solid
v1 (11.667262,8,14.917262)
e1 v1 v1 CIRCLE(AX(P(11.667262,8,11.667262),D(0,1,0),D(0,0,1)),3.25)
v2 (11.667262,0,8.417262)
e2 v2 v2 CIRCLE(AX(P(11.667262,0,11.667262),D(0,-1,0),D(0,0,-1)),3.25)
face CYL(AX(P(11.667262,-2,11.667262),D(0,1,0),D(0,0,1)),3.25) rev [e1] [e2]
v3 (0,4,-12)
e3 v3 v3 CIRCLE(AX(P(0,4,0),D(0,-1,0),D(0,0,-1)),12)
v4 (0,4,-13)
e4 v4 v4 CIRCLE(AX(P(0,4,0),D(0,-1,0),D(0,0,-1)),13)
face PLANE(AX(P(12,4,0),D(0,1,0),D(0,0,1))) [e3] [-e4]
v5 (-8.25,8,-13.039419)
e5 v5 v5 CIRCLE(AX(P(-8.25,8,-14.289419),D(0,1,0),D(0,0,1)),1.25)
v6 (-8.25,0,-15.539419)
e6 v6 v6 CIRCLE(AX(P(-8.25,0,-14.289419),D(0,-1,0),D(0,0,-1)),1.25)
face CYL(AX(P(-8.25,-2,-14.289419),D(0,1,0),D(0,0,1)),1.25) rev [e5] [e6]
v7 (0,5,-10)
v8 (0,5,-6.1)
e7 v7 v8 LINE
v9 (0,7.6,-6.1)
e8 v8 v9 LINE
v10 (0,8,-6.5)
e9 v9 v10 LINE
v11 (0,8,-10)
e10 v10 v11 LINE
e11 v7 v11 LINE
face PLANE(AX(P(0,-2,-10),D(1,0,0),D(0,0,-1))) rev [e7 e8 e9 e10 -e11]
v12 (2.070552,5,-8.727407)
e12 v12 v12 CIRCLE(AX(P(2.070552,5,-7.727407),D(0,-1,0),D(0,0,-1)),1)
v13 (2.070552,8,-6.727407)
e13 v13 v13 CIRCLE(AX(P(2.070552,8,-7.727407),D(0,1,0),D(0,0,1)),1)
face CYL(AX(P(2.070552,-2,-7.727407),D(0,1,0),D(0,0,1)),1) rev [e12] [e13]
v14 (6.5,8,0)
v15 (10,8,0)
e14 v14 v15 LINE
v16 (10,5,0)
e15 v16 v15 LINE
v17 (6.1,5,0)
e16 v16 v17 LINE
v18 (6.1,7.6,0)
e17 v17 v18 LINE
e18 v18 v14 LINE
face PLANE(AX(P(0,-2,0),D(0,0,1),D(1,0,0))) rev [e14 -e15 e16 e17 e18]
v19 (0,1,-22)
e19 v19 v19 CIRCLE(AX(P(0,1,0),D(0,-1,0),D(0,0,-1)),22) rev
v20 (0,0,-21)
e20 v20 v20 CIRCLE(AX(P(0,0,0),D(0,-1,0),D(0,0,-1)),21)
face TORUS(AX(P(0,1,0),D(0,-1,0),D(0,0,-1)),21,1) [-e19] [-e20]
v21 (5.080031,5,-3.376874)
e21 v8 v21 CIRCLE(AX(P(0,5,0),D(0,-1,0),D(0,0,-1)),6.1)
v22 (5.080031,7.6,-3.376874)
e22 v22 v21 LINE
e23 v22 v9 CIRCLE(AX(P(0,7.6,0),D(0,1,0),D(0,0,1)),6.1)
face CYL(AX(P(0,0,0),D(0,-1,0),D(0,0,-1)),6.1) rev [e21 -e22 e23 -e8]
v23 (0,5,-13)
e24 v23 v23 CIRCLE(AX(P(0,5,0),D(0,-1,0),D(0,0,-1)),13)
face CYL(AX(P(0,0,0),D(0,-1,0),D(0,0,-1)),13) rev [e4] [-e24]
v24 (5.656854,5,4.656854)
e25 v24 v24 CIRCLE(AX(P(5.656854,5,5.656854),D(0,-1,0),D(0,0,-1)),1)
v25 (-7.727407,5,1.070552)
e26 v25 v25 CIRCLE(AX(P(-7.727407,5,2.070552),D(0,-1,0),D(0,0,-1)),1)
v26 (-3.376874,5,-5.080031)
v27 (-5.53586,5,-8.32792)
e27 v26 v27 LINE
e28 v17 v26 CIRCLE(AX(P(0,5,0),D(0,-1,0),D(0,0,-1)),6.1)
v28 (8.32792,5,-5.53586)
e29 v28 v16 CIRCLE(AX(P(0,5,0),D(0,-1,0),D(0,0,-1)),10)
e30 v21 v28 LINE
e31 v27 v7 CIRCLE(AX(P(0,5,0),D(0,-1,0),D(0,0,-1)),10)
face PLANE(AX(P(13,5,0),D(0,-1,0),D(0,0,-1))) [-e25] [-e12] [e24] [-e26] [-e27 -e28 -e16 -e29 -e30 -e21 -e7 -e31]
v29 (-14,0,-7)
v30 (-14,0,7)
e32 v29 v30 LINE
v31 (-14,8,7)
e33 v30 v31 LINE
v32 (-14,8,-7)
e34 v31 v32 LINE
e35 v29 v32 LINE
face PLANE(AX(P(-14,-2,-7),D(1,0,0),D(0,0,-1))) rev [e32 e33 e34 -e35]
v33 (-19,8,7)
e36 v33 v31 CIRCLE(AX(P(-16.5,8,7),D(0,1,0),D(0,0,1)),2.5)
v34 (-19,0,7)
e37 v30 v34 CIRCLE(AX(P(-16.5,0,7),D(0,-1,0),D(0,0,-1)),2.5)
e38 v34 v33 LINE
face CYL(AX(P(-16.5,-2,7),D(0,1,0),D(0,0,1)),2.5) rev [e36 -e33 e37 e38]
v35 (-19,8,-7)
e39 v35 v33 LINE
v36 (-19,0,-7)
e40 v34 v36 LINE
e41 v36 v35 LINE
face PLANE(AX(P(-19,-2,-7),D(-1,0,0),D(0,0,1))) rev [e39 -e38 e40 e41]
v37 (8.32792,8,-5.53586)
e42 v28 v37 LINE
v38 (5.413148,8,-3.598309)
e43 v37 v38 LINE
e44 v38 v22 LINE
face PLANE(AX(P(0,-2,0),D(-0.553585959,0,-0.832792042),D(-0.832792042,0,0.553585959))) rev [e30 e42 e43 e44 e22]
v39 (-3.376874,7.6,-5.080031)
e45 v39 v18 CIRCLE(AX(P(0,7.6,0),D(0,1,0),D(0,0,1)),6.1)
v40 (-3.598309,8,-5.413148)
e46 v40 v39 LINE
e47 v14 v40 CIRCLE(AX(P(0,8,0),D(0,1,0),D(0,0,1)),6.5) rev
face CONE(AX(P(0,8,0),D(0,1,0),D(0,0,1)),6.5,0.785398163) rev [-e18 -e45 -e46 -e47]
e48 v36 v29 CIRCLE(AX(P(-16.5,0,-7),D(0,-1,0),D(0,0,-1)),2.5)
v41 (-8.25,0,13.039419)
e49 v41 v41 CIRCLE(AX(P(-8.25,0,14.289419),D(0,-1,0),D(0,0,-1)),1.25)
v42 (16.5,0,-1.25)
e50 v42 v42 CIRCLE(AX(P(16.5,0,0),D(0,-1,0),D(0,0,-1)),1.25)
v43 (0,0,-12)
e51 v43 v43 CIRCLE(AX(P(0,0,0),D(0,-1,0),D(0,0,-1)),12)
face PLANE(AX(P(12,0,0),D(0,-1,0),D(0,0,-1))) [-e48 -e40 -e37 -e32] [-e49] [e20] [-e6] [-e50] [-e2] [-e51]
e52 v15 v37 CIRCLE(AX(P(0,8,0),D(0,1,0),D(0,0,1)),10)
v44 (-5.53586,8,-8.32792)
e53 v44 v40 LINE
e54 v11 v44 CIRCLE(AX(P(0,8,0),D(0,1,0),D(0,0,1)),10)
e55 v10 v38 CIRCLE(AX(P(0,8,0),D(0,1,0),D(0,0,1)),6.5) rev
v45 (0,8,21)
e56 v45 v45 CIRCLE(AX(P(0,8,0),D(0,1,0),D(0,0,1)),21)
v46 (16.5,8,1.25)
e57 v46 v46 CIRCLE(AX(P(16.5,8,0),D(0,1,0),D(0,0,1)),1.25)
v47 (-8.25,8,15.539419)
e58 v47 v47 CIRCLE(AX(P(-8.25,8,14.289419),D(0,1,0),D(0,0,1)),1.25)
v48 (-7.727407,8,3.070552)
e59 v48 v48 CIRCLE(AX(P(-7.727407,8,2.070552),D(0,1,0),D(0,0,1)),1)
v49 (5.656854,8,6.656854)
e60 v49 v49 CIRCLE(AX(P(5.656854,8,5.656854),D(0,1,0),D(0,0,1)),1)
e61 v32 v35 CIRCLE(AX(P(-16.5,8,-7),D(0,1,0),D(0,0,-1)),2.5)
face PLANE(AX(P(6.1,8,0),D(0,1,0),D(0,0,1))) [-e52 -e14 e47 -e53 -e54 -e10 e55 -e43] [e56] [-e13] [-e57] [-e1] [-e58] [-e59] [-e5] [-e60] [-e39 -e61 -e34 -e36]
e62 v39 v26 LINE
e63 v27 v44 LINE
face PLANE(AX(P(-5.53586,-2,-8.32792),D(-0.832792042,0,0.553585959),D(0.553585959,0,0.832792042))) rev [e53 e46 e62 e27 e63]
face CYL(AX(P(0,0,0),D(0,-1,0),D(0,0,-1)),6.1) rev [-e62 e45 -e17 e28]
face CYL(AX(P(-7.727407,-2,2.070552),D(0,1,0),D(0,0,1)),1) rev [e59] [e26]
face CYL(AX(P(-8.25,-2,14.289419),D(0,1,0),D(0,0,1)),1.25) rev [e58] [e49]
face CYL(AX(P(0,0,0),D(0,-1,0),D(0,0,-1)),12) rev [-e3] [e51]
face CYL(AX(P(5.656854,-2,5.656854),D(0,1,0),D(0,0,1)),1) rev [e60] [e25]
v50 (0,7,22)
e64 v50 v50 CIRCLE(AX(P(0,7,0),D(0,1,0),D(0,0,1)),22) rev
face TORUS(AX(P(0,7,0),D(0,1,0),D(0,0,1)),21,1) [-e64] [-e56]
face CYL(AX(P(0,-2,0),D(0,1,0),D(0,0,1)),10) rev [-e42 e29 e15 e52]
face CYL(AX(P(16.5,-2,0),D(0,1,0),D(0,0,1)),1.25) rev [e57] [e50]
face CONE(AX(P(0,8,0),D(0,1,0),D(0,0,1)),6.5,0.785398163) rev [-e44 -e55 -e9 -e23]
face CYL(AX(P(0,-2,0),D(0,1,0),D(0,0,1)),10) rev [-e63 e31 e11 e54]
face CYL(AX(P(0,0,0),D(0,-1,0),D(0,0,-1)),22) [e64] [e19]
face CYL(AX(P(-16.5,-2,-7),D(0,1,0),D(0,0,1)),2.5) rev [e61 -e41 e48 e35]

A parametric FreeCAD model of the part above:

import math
import FreeCAD as App
import Part
import Sketcher
from FreeCAD import Vector


def edges_at(feature, points):
    """Names of the edges that pass closest to the given points."""
    edges = feature.Shape.Edges
    near = lambda p: min(range(len(edges)), key=lambda i: edges[i].distToShape(Part.Vertex(*p))[0])
    return sorted({f"Edge{near(p) + 1}" for p in points})


def add_polygon(sketch, points):
    """Adds a closed chain of lines whose ends are joined by coincident constraints."""
    first, n = sketch.GeometryCount, len(points)
    for a, b in zip(points, points[1:] + points[:1]):
        sketch.addGeometry(Part.LineSegment(App.Vector(*a, 0), App.Vector(*b, 0)), False)
    for i in range(n):
        sketch.addConstraint(Sketcher.Constraint("Coincident", first + i, 2, first + (i + 1) % n, 1))

doc = App.newDocument("Part")
params = doc.addObject("Spreadsheet::Sheet", "Params")
for row, (alias, value) in enumerate([
    ("sketch1_width", "10 mm"),
    ("sketch1_width2", "1 mm"),
    ("sketch1_height", "4 mm"),
    ("sketch1_height2", "8 mm"),
    ("sketch1_width3", "15.9 mm"),
    ("revolution_angle", "360 deg"),
    ("fillet_radius", "1 mm"),
    ("chamfer_size", "0.4 mm"),
    ("sketch2_diameter", "2 mm"),
    ("sketch2_radius", "10 mm"),
    ("sketch2_diameter2", "2.5 mm"),
    ("sketch2_diameter3", "6.5 mm"),
    ("sketch2_radius2", "2.5 mm"),
    ("pocket1_length", "10 mm"),
], start=1):
    params.set(f"A{row}", alias)
    params.set(f"B{row}", "=" + value)
    params.setAlias(f"B{row}", alias)

body = doc.addObject("PartDesign::Body", "Body")

# Sketch on XY plane
sketch1 = body.newObject("Sketcher::SketchObject", "Sketch")
sketch1.AttachmentSupport = (doc.getObject("XY_Plane"), [""])
sketch1.MapMode = "FlatFace"
add_polygon(sketch1, [(12, 4), (12, 0), (22, 0), (22, 8), (6.1, 8), (6.1, 5), (13, 5), (13, 4)])  # lines 0-7
sketch1.addConstraint(Sketcher.Constraint("Vertical", 0))
sketch1.addConstraint(Sketcher.Constraint("Horizontal", 1))
sketch1.addConstraint(Sketcher.Constraint("Vertical", 2))
sketch1.addConstraint(Sketcher.Constraint("Horizontal", 3))
sketch1.addConstraint(Sketcher.Constraint("Vertical", 4))
sketch1.addConstraint(Sketcher.Constraint("Horizontal", 5))
sketch1.addConstraint(Sketcher.Constraint("Vertical", 6))
sketch1.addConstraint(Sketcher.Constraint("Horizontal", 7))
sketch1.addConstraint(Sketcher.Constraint("PointOnObject", 0, 2, -1))
sketch1.addConstraint(Sketcher.Constraint("Equal", 7, 6))
sketch1.addConstraint(Sketcher.Constraint("DistanceX", 1, 1, 1, 2, 10.0))
sketch1.addConstraint(Sketcher.Constraint("DistanceX", 7, 2, 7, 1, 1.0))
sketch1.addConstraint(Sketcher.Constraint("DistanceY", 0, 2, 0, 1, 4.0))
sketch1.addConstraint(Sketcher.Constraint("DistanceY", 2, 1, 2, 2, 8.0))
sketch1.addConstraint(Sketcher.Constraint("DistanceX", 3, 2, 3, 1, 15.9))
sketch1.addConstraint(Sketcher.Constraint("DistanceX", -1, 1, 0, 2, 12.0))
sketch1.setExpression("Constraints[18]", "Params.sketch1_width")
sketch1.setExpression("Constraints[19]", "Params.sketch1_width2")
sketch1.setExpression("Constraints[20]", "Params.sketch1_height")
sketch1.setExpression("Constraints[21]", "Params.sketch1_height2")
sketch1.setExpression("Constraints[22]", "Params.sketch1_width3")
revolution = body.newObject("PartDesign::Revolution", "Revolution")
revolution.Profile = sketch1
revolution.ReferenceAxis = (sketch1, ["V_Axis"])
revolution.setExpression("Angle", "Params.revolution_angle")
doc.recompute()

fillet = body.newObject("PartDesign::Fillet", "Fillet")
fillet.Base = (revolution, edges_at(revolution, [(0, 8, 22), (0, 0, 22)]))
fillet.setExpression("Radius", "Params.fillet_radius")
doc.recompute()

chamfer = body.newObject("PartDesign::Chamfer", "Chamfer")
chamfer.Base = (fillet, edges_at(fillet, [(0, 8, 6.1)]))
chamfer.setExpression("Size", "Params.chamfer_size")

# Sketch on XZ plane
sketch2 = body.newObject("Sketcher::SketchObject", "Sketch001")
sketch2.AttachmentSupport = (doc.getObject("XZ_Plane"), [""])
sketch2.MapMode = "FlatFace"
sketch2.AttachmentOffset = App.Placement(Vector(0, 0, -8), App.Rotation())
sketch2.addGeometry(Part.Circle(Vector(2.070552, -7.727407, 0), Vector(0, 0, 1), 1), False)
sketch2.addGeometry(Part.Circle(Vector(5.656854, 5.656854, 0), Vector(0, 0, 1), 1), False)
sketch2.addGeometry(Part.Circle(Vector(-7.727407, 2.070552, 0), Vector(0, 0, 1), 1), False)
sketch2.addGeometry(Part.Circle(Vector(16.5, 0, 0), Vector(0, 0, 1), 1.25), False)
sketch2.addGeometry(Part.Circle(Vector(-8.25, 14.289419, 0), Vector(0, 0, 1), 1.25), False)
sketch2.addGeometry(Part.Circle(Vector(-8.25, -14.289419, 0), Vector(0, 0, 1), 1.25), False)
sketch2.addGeometry(Part.Circle(Vector(11.667262, 11.667262, 0), Vector(0, 0, 1), 3.25), False)
sketch2.addGeometry(Part.LineSegment(Vector(8.32792, -5.53586, 0), Vector(0, 0, 0)), False)
sketch2.addGeometry(Part.LineSegment(Vector(0, 0, 0), Vector(10, 0, 0)), False)
sketch2.addGeometry(Part.ArcOfCircle(Part.Circle(Vector(0, 0, 0), Vector(0, 0, 1), 10), math.radians(-33.613374), math.radians(0)), False)
sketch2.addGeometry(Part.LineSegment(Vector(-19, -7, 0), Vector(-19, 7, 0)), False)
sketch2.addGeometry(Part.ArcOfCircle(Part.Circle(Vector(-16.5, 7, 0), Vector(0, 0, 1), 2.5), math.radians(0), math.radians(180)), False)
sketch2.addGeometry(Part.LineSegment(Vector(-14, 7, 0), Vector(-14, -7, 0)), False)
sketch2.addGeometry(Part.ArcOfCircle(Part.Circle(Vector(-16.5, -7, 0), Vector(0, 0, 1), 2.5), math.radians(180), math.radians(360)), False)
sketch2.addGeometry(Part.LineSegment(Vector(-5.53586, -8.32792, 0), Vector(-3.064574, -4.61022, 0)), False)
sketch2.addGeometry(Part.ArcOfCircle(Part.Circle(Vector(0, 0, 0), Vector(0, 0, 1), 5.53586), math.radians(-123.613374), math.radians(-90)), False)
sketch2.addGeometry(Part.LineSegment(Vector(0, -5.53586, 0), Vector(0, -10, 0)), False)
sketch2.addGeometry(Part.ArcOfCircle(Part.Circle(Vector(0, 0, 0), Vector(0, 0, 1), 10), math.radians(-123.613374), math.radians(-90)), False)
sketch2.addConstraint(Sketcher.Constraint("Coincident", 7, 2, 8, 1))
sketch2.addConstraint(Sketcher.Constraint("Coincident", 8, 2, 9, 2))
sketch2.addConstraint(Sketcher.Constraint("Coincident", 9, 1, 7, 1))
sketch2.addConstraint(Sketcher.Constraint("Tangent", 10, 2, 11, 2))
sketch2.addConstraint(Sketcher.Constraint("Tangent", 11, 1, 12, 1))
sketch2.addConstraint(Sketcher.Constraint("Tangent", 12, 2, 13, 2))
sketch2.addConstraint(Sketcher.Constraint("Tangent", 13, 1, 10, 1))
sketch2.addConstraint(Sketcher.Constraint("Coincident", 14, 2, 15, 1))
sketch2.addConstraint(Sketcher.Constraint("Coincident", 15, 2, 16, 1))
sketch2.addConstraint(Sketcher.Constraint("Coincident", 16, 2, 17, 2))
sketch2.addConstraint(Sketcher.Constraint("Coincident", 17, 1, 14, 1))
sketch2.addConstraint(Sketcher.Constraint("Horizontal", 8))
sketch2.addConstraint(Sketcher.Constraint("Vertical", 10))
sketch2.addConstraint(Sketcher.Constraint("Vertical", 12))
sketch2.addConstraint(Sketcher.Constraint("Vertical", 16))
sketch2.addConstraint(Sketcher.Constraint("Coincident", 9, 3, -1, 1))
sketch2.addConstraint(Sketcher.Constraint("Coincident", 15, 3, -1, 1))
sketch2.addConstraint(Sketcher.Constraint("Coincident", 17, 3, -1, 1))
sketch2.addConstraint(Sketcher.Constraint("Coincident", 7, 2, -1, 1))
sketch2.addConstraint(Sketcher.Constraint("Equal", 0, 1))
sketch2.addConstraint(Sketcher.Constraint("Equal", 1, 2))
sketch2.addConstraint(Sketcher.Constraint("Equal", 3, 4))
sketch2.addConstraint(Sketcher.Constraint("Equal", 4, 5))
sketch2.addConstraint(Sketcher.Constraint("Equal", 9, 17))
sketch2.addConstraint(Sketcher.Constraint("Symmetric", 4, 3, 5, 3, -1))
sketch2.addConstraint(Sketcher.Constraint("PointOnObject", 3, 3, -1))
sketch2.addConstraint(Sketcher.Constraint("PointOnObject", 15, 2, -2))
sketch2.addConstraint(Sketcher.Constraint("Perpendicular", 7, 14))
sketch2.addConstraint(Sketcher.Constraint("Horizontal", 9, 1, 15, 2))
sketch2.addConstraint(Sketcher.Constraint("Diameter", 0, 2.0))
sketch2.addConstraint(Sketcher.Constraint("Radius", 9, 10.0))
sketch2.addConstraint(Sketcher.Constraint("Diameter", 3, 2.5))
sketch2.addConstraint(Sketcher.Constraint("Diameter", 6, 6.5))
sketch2.addConstraint(Sketcher.Constraint("Radius", 11, 2.5))
sketch2.addConstraint(Sketcher.Constraint("DistanceY", 10, 1, 10, 2, 14.0))
sketch2.addConstraint(Sketcher.Constraint("DistanceY", -1, 1, 11, 3, 7.0))
sketch2.addConstraint(Sketcher.Constraint("DistanceX", 10, 2, -1, 1, 19.0))
sketch2.addConstraint(Sketcher.Constraint("DistanceX", -1, 1, 3, 3, 16.5))
sketch2.addConstraint(Sketcher.Constraint("DistanceX", 4, 3, -1, 1, 8.25))
sketch2.addConstraint(Sketcher.Constraint("Radius", 15, 5.53586))
sketch2.addConstraint(Sketcher.Constraint("DistanceX", 0, 3, 1, 3, 3.586302))
sketch2.addConstraint(Sketcher.Constraint("DistanceY", 2, 3, 1, 3, 3.586302))
sketch2.addConstraint(Sketcher.Constraint("DistanceY", 5, 3, 17, 1, 5.961499))
sketch2.addConstraint(Sketcher.Constraint("DistanceY", -1, 1, 4, 3, 14.289419))
sketch2.addConstraint(Sketcher.Constraint("DistanceX", -1, 1, 6, 3, 11.667262))
sketch2.addConstraint(Sketcher.Constraint("DistanceY", -1, 1, 6, 3, 11.667262))
sketch2.addConstraint(Sketcher.Constraint("DistanceY", 0, 3, 1, 3, 13.384261))
sketch2.addConstraint(Sketcher.Constraint("DistanceX", 2, 3, 1, 3, 13.384261))
sketch2.addConstraint(Sketcher.Constraint("DistanceY", 5, 3, 2, 3, 16.359972))
sketch2.addConstraint(Sketcher.Constraint("DistanceX", 0, 3, 6, 3, 9.59671))
sketch2.setExpression("Constraints[29]", "Params.sketch2_diameter")
sketch2.setExpression("Constraints[30]", "Params.sketch2_radius")
sketch2.setExpression("Constraints[31]", "Params.sketch2_diameter2")
sketch2.setExpression("Constraints[32]", "Params.sketch2_diameter3")
sketch2.setExpression("Constraints[33]", "Params.sketch2_radius2")
pocket1 = body.newObject("PartDesign::Pocket", "Pocket")
pocket1.Profile = sketch2
pocket1.setExpression("Length", "Params.pocket1_length")
pocket1.Reversed = True

doc.recompute()
